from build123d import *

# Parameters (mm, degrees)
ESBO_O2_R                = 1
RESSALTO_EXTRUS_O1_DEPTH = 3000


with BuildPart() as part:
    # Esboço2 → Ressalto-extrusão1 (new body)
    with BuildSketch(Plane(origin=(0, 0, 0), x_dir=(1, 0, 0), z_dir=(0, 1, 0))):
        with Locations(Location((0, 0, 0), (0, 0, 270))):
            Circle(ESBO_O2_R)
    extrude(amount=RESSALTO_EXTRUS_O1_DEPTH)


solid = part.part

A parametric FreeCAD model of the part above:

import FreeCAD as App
import Part
import Sketcher

V = App.Vector
Q = App.Units.Quantity

doc = App.newDocument("Part")
body = doc.addObject("PartDesign::Body", "Body")

# Sketch on XZ plane
sketch1 = doc.addObject("Sketcher::SketchObject", "Sketch")
body.addObject(sketch1)
sketch1.AttachmentSupport = (doc.XZ_Plane, [""])
sketch1.MapMode = "FlatFace"
sketch1.addGeometry(Part.Circle(V(0, 0, 0), V(0, 0, 1), 1), False)
sketch1.addConstraint([
    Sketcher.Constraint("Coincident", 0, 3, -1, 1),
    Sketcher.Constraint("Diameter", 0, Q("2 mm")),
])
pad1 = doc.addObject("PartDesign::Pad", "Pad")
body.addObject(pad1)
pad1.Profile = sketch1
pad1.Length = 3000
pad1.Reversed = True

doc.recompute()
